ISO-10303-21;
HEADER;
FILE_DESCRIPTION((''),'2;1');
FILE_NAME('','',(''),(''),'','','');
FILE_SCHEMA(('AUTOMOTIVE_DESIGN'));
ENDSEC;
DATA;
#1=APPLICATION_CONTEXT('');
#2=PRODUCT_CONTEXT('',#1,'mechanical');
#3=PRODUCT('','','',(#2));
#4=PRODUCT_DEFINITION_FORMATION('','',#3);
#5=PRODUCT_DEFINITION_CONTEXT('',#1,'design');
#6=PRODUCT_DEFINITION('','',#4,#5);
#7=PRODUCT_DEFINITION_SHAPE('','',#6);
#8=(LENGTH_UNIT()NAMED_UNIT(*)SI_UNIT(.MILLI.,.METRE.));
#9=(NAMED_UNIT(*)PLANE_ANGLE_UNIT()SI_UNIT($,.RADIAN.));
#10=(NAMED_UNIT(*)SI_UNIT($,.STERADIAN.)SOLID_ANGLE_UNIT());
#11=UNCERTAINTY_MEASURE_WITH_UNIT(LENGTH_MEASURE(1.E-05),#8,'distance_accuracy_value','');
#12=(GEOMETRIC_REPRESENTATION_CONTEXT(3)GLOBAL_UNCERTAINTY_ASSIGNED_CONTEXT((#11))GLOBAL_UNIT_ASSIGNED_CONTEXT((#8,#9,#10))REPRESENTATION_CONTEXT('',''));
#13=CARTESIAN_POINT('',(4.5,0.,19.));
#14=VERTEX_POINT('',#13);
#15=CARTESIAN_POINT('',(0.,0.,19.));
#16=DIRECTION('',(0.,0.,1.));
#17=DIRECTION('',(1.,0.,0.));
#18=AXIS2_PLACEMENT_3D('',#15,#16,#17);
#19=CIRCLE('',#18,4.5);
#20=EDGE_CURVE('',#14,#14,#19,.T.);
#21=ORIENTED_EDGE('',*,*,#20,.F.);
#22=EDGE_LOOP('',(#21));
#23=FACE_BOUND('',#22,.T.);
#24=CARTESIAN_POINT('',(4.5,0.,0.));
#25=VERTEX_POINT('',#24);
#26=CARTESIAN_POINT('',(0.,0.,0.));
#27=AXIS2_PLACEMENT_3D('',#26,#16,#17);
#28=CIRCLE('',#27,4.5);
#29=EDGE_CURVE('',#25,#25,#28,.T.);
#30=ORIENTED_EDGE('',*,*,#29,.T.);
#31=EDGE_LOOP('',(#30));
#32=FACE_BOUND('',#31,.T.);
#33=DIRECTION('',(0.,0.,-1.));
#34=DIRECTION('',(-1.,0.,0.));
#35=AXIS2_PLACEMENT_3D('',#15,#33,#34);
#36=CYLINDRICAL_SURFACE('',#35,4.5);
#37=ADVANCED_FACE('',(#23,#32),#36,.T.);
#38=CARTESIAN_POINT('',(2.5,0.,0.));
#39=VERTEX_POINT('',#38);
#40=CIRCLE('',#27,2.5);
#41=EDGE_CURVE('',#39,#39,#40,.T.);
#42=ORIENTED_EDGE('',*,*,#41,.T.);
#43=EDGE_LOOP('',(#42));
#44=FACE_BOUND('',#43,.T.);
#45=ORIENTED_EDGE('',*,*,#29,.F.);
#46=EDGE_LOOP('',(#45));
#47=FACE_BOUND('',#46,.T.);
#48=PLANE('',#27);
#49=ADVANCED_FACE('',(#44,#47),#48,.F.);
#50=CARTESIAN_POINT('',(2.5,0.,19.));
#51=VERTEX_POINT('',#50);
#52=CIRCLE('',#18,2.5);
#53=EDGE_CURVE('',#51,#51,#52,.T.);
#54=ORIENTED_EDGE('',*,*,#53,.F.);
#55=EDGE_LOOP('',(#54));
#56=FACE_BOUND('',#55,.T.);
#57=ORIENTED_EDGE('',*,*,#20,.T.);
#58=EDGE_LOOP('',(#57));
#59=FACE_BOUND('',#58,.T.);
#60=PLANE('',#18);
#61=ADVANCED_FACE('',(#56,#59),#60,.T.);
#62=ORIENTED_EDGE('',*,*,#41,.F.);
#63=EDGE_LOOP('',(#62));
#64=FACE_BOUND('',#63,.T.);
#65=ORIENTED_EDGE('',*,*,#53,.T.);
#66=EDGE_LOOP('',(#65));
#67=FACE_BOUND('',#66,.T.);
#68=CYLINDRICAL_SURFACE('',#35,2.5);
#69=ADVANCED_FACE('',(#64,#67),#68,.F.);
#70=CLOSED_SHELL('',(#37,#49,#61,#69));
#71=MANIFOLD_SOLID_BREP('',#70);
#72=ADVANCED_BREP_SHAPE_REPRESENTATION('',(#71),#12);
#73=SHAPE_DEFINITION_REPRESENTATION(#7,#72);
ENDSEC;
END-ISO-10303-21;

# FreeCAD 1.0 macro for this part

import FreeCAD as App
import Part
import Sketcher
from FreeCAD import Vector
Q = App.Units.Quantity

doc = App.newDocument("Part")
body = doc.addObject("PartDesign::Body", "Body")

# Sketch on XY plane
sketch1 = body.newObject("Sketcher::SketchObject", "Sketch")
sketch1.AttachmentSupport = (doc.getObject("XY_Plane"), [""])
sketch1.MapMode = "FlatFace"
sketch1.addGeometry([
    Part.Circle(Vector(0, 0, 0), Vector(0, 0, 1), 4.5),
    Part.Circle(Vector(0, 0, 0), Vector(0, 0, 1), 2.5),
], False)
sketch1.addConstraint([
    Sketcher.Constraint("Coincident", 0, 3, -1, 1),
    Sketcher.Constraint("Coincident", 1, 3, -1, 1),
    Sketcher.Constraint("Diameter", 0, Q("9 mm")),
    Sketcher.Constraint("Diameter", 1, Q("5 mm")),
])
pad1 = body.newObject("PartDesign::Pad", "Pad")
pad1.Profile = sketch1
pad1.Length = 19

doc.recompute()
